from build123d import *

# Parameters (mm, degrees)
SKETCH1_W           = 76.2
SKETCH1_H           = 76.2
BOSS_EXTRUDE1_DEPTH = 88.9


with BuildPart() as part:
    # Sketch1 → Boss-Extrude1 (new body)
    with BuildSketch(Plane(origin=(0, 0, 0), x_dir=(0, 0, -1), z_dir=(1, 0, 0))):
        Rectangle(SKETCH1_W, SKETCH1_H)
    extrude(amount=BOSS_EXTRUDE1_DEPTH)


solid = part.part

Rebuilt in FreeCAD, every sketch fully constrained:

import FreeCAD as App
import Part
import Sketcher
Q = App.Units.Quantity

doc = App.newDocument("Part")
body = doc.addObject("PartDesign::Body", "Body")

# Sketch on YZ plane
sketch1 = body.newObject("Sketcher::SketchObject", "Sketch")
sketch1.AttachmentSupport = (doc.getObject("YZ_Plane"), [""])
sketch1.MapMode = "FlatFace"
sketch1.addGeometry([
    Part.LineSegment(App.Vector(38.1, 38.1, 0), App.Vector(-38.1, 38.1, 0)),
    Part.LineSegment(App.Vector(-38.1, 38.1, 0), App.Vector(-38.1, -38.1, 0)),
    Part.LineSegment(App.Vector(-38.1, -38.1, 0), App.Vector(38.1, -38.1, 0)),
    Part.LineSegment(App.Vector(38.1, -38.1, 0), App.Vector(38.1, 38.1, 0)),
], False)
sketch1.addConstraint([
    Sketcher.Constraint("Coincident", 0, 2, 1, 1),
    Sketcher.Constraint("Coincident", 1, 2, 2, 1),
    Sketcher.Constraint("Coincident", 2, 2, 3, 1),
    Sketcher.Constraint("Coincident", 3, 2, 0, 1),
    Sketcher.Constraint("Horizontal", 0),
    Sketcher.Constraint("Vertical", 1),
    Sketcher.Constraint("Horizontal", 2),
    Sketcher.Constraint("Vertical", 3),
    Sketcher.Constraint("Symmetric", 0, 2, 2, 2, -1, 1),
    Sketcher.Constraint("Equal", 2, 1),
    Sketcher.Constraint("DistanceX", 0, 2, 0, 1, Q("3 in")),
])
pad1 = body.newObject("PartDesign::Pad", "Pad")
pad1.Profile = sketch1
pad1.Length = Q("3.5 in")

doc.recompute()
